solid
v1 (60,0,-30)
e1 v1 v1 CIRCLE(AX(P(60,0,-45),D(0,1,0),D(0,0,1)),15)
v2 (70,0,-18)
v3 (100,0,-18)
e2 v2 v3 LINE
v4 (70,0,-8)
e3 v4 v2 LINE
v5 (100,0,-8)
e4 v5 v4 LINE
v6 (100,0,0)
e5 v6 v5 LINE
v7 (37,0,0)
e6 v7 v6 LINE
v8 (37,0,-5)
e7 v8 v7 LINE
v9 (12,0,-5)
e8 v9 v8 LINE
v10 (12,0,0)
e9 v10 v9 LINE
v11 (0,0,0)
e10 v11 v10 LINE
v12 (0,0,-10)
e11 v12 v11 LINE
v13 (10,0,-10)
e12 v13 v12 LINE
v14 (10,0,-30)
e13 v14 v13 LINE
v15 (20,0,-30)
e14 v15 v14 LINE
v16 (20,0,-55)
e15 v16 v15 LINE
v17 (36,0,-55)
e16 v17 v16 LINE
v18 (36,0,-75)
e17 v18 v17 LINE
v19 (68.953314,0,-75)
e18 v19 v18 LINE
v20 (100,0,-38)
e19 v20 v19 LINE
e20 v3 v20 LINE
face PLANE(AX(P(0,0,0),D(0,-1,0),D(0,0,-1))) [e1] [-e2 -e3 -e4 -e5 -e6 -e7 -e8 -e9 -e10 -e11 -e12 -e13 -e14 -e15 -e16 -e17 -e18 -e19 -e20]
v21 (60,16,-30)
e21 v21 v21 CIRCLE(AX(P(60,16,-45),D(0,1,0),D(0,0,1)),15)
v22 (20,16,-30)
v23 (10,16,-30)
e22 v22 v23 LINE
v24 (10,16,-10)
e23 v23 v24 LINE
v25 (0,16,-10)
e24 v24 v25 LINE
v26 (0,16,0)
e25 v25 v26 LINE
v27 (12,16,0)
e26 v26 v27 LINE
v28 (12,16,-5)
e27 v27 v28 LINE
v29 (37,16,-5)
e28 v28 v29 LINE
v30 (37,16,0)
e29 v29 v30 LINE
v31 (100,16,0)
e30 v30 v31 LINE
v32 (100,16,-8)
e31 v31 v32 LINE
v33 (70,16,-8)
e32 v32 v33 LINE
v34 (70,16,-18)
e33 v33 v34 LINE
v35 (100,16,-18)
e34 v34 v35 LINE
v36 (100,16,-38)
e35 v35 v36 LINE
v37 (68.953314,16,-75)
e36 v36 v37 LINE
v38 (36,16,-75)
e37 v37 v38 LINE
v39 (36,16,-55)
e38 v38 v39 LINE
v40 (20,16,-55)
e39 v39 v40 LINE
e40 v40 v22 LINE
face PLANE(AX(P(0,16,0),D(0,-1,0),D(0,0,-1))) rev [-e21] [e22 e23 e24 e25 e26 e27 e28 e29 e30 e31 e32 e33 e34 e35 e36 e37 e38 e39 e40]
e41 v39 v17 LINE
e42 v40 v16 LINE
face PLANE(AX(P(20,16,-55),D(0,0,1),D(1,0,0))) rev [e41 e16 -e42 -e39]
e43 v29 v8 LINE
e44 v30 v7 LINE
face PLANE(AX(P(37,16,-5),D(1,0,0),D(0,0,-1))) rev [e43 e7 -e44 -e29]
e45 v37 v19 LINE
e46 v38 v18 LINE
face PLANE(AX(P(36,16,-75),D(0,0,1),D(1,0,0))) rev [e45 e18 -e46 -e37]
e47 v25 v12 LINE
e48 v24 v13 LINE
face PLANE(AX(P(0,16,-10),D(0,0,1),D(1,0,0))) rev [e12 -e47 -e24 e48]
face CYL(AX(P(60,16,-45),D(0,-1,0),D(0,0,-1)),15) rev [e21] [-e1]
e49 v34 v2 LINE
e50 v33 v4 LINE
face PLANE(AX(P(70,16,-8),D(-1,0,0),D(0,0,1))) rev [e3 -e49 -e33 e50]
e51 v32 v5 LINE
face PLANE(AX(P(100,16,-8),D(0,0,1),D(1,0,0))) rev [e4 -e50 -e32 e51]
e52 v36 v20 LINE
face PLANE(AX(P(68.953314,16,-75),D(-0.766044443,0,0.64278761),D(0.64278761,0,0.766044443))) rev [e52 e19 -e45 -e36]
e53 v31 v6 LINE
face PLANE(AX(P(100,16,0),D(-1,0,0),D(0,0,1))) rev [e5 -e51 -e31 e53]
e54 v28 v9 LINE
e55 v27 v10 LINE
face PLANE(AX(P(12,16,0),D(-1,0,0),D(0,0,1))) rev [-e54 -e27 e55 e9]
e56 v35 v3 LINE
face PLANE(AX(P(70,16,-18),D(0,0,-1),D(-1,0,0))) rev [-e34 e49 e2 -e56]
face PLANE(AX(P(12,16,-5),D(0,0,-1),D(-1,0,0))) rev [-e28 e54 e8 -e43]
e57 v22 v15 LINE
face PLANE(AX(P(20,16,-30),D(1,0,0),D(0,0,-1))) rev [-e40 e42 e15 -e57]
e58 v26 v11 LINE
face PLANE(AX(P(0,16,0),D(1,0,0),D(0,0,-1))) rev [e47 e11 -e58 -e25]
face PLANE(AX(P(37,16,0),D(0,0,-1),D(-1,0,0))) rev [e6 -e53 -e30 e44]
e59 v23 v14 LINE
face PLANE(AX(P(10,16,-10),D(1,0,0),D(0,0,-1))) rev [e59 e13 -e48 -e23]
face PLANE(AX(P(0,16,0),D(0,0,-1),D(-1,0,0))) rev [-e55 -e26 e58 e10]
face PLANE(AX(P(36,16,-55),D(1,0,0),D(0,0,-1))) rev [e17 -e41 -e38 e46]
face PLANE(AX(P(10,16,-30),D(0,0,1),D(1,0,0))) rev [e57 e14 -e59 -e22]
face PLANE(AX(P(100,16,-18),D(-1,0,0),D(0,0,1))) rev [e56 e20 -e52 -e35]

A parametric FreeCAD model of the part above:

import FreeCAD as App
import Part
import Sketcher
Q = App.Units.Quantity


def add_polygon(sketch, points):
    """Adds a closed chain of lines whose ends are joined by coincident constraints."""
    first, n = sketch.GeometryCount, len(points)
    for a, b in zip(points, points[1:] + points[:1]):
        sketch.addGeometry(Part.LineSegment(App.Vector(*a, 0), App.Vector(*b, 0)), False)
    for i in range(n):
        sketch.addConstraint(Sketcher.Constraint("Coincident", first + i, 2, first + (i + 1) % n, 1))

doc = App.newDocument("Part")
body = doc.addObject("PartDesign::Body", "Body")

sketch1 = body.newObject("Sketcher::SketchObject", "Sketch")
sketch1.AttachmentSupport = (doc.getObject("XZ_Plane"), [""])
sketch1.MapMode = "FlatFace"
add_polygon(sketch1, [(0, 0), (12, 0), (12, -5), (37, -5), (37, 0), (100, 0), (100, -8), (70, -8), (70, -18), (100, -18), (100, -38), (68.953314, -75), (36, -75), (36, -55), (20, -55), (20, -30), (10, -30), (10, -10), (0, -10)])
sketch1.addGeometry(Part.Circle(App.Vector(60, -45, 0), App.Vector(0, 0, 1), 15), False)
sketch1.addConstraint(Sketcher.Constraint("Horizontal", 0))
sketch1.addConstraint(Sketcher.Constraint("Vertical", 1))
sketch1.addConstraint(Sketcher.Constraint("Horizontal", 2))
sketch1.addConstraint(Sketcher.Constraint("Vertical", 3))
sketch1.addConstraint(Sketcher.Constraint("Horizontal", 4))
sketch1.addConstraint(Sketcher.Constraint("Vertical", 5))
sketch1.addConstraint(Sketcher.Constraint("Horizontal", 6))
sketch1.addConstraint(Sketcher.Constraint("Vertical", 7))
sketch1.addConstraint(Sketcher.Constraint("Horizontal", 8))
sketch1.addConstraint(Sketcher.Constraint("Vertical", 9))
sketch1.addConstraint(Sketcher.Constraint("Horizontal", 11))
sketch1.addConstraint(Sketcher.Constraint("Vertical", 12))
sketch1.addConstraint(Sketcher.Constraint("Horizontal", 13))
sketch1.addConstraint(Sketcher.Constraint("Vertical", 14))
sketch1.addConstraint(Sketcher.Constraint("Horizontal", 15))
sketch1.addConstraint(Sketcher.Constraint("Vertical", 16))
sketch1.addConstraint(Sketcher.Constraint("Horizontal", 17))
sketch1.addConstraint(Sketcher.Constraint("Vertical", 18))
sketch1.addConstraint(Sketcher.Constraint("Coincident", 18, 2, -1, 1))
sketch1.addConstraint(Sketcher.Constraint("PointOnObject", 3, 2, -1))
sketch1.addConstraint(Sketcher.Constraint("Vertical", 5, 2, 8, 2))
sketch1.addConstraint(Sketcher.Constraint("Equal", 15, 17))
sketch1.addConstraint(Sketcher.Constraint("Equal", 17, 7))
sketch1.addConstraint(Sketcher.Constraint("Equal", 9, 12))
sketch1.addConstraint(Sketcher.Constraint("Equal", 2, 14))
sketch1.addConstraint(Sketcher.Constraint("Equal", 12, 16))
sketch1.addConstraint(Sketcher.Constraint("Equal", 7, 18))
sketch1.addConstraint(Sketcher.Constraint("Diameter", 19, 30.0))
sketch1.addConstraint(Sketcher.Constraint("DistanceX", 0, 1, 0, 2, 12.0))
sketch1.addConstraint(Sketcher.Constraint("DistanceX", 2, 1, 2, 2, 25.0))
sketch1.addConstraint(Sketcher.Constraint("DistanceX", 4, 1, 4, 2, 63.0))
sketch1.addConstraint(Sketcher.Constraint("DistanceX", 6, 2, 6, 1, 30.0))
sketch1.addConstraint(Sketcher.Constraint("DistanceX", 13, 2, 13, 1, 16.0))
sketch1.addConstraint(Sketcher.Constraint("DistanceX", 15, 2, 15, 1, 10.0))
sketch1.addConstraint(Sketcher.Constraint("DistanceY", 1, 2, 1, 1, 5.0))
sketch1.addConstraint(Sketcher.Constraint("DistanceY", 5, 2, 5, 1, 8.0))
sketch1.addConstraint(Sketcher.Constraint("DistanceY", 9, 2, 9, 1, 20.0))
sketch1.addConstraint(Sketcher.Constraint("Angle", 10, Q("-130 deg")))
sketch1.addConstraint(Sketcher.Constraint("DistanceX", -1, 1, 19, 3, 60.0))
sketch1.addConstraint(Sketcher.Constraint("DistanceY", 19, 3, -1, 1, 45.0))
pad1 = body.newObject("PartDesign::Pad", "Pad")
pad1.Profile = sketch1
pad1.Length = 16
pad1.Reversed = True

doc.recompute()
